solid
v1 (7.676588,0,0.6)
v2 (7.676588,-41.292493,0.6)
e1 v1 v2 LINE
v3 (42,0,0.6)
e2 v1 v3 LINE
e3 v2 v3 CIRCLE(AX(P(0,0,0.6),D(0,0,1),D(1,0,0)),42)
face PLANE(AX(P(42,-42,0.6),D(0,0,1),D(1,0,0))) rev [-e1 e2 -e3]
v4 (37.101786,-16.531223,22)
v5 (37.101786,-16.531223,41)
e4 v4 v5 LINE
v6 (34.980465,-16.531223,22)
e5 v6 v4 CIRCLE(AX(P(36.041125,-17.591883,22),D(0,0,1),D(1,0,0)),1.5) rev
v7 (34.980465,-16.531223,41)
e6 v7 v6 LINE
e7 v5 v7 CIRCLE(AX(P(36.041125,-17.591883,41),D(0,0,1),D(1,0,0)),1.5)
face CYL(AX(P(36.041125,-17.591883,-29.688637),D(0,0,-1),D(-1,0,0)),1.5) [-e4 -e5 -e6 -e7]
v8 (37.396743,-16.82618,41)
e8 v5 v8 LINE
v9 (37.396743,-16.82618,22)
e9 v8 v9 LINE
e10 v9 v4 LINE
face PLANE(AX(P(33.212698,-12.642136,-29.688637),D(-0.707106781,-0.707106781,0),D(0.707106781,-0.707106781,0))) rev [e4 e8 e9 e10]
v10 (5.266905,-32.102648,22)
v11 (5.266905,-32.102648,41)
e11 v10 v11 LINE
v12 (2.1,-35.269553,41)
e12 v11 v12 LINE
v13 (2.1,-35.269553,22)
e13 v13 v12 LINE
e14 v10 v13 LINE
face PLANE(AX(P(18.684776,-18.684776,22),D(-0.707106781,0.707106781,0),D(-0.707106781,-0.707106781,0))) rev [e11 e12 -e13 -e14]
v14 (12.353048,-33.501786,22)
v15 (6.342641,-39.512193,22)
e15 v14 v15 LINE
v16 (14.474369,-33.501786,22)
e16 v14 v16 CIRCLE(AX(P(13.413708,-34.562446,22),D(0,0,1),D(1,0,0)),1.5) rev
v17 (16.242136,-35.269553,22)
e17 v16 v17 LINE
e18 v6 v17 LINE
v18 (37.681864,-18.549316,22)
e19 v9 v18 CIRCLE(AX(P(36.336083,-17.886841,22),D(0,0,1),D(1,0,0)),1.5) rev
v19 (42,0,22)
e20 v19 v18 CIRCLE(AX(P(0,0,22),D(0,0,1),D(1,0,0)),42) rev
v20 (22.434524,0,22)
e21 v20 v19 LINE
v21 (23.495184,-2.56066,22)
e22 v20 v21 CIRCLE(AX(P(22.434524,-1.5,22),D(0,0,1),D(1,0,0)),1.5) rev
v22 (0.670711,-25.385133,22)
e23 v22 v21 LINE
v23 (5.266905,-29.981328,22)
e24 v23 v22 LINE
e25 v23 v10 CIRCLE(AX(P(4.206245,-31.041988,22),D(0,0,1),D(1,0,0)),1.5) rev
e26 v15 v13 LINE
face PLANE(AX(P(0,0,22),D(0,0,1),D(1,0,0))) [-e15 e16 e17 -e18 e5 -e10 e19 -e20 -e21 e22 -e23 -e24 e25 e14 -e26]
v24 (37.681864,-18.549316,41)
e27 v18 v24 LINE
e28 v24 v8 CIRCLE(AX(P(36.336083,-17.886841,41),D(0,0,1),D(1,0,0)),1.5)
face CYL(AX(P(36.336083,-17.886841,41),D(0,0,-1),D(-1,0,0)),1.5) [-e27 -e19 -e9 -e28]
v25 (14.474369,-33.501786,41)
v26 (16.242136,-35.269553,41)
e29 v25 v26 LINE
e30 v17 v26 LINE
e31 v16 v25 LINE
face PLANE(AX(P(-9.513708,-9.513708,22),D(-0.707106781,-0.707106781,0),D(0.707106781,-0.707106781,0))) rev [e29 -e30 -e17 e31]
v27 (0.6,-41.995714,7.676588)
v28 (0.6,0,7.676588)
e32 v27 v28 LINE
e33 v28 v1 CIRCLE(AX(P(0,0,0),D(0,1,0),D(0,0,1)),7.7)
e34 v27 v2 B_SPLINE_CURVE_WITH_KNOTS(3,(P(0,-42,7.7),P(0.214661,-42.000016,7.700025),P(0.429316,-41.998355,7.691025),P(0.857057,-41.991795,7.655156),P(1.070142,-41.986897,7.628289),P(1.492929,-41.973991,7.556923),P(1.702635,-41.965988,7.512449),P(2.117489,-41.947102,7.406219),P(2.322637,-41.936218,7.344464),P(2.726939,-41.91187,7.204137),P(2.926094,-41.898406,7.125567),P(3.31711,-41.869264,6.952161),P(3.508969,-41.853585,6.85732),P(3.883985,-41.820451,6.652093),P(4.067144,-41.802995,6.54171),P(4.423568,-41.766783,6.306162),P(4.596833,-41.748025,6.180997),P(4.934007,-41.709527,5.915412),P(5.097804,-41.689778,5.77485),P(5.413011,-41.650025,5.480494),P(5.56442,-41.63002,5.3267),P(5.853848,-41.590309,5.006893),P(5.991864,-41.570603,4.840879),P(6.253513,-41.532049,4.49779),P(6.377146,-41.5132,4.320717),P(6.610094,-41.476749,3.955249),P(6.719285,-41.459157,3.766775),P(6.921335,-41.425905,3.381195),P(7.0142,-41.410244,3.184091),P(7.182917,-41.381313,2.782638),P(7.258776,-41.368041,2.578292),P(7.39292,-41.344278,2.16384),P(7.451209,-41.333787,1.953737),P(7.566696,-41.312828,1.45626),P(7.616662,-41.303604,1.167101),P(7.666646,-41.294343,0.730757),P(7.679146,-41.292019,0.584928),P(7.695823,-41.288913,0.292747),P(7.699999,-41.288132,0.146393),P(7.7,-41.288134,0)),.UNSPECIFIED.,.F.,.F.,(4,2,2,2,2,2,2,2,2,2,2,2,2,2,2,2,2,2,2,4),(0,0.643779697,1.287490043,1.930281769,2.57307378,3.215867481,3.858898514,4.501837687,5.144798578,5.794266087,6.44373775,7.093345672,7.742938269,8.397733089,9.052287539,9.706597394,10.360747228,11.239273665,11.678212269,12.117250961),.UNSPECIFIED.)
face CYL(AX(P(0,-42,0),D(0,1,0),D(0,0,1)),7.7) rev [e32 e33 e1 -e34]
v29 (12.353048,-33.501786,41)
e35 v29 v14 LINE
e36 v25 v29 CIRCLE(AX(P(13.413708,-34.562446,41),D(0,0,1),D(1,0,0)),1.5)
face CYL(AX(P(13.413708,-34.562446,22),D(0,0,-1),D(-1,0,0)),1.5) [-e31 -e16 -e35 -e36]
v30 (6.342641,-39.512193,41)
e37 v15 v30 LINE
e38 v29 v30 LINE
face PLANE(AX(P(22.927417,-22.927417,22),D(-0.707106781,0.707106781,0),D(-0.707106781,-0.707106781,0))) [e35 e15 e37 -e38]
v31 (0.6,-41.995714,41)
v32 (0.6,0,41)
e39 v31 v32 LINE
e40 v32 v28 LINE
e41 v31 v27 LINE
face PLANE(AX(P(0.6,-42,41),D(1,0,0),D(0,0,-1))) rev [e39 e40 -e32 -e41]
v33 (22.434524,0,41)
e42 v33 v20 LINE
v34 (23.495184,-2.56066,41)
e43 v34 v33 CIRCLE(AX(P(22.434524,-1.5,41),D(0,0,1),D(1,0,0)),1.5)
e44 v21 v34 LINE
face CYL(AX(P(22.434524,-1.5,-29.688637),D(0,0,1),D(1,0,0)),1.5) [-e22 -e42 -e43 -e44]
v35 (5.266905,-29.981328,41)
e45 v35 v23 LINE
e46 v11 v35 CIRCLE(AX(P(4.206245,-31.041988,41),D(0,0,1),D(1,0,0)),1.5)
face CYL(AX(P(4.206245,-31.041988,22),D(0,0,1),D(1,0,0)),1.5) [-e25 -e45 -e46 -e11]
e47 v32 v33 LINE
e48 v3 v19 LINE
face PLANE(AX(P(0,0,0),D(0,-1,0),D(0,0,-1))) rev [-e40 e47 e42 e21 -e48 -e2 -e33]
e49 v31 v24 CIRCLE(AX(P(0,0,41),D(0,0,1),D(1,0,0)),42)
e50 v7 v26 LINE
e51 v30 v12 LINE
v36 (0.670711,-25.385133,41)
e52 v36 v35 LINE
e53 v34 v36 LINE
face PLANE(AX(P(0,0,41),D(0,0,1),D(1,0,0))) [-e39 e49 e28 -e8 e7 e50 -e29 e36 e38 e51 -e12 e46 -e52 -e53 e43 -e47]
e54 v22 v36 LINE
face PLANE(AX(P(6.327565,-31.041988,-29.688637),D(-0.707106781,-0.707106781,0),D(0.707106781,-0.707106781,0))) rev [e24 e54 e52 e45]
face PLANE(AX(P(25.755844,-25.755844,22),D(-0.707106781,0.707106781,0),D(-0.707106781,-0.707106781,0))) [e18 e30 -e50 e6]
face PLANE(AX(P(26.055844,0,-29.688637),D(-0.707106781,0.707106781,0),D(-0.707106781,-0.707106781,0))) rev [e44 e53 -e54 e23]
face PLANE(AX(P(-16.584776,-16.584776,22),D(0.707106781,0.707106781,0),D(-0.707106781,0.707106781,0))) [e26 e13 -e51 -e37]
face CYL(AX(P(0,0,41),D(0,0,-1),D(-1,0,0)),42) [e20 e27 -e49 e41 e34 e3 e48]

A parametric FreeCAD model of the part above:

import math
import FreeCAD as App
import Part
import Sketcher
from FreeCAD import Vector
Q = App.Units.Quantity


def edges_at(feature, points):
    """Names of the edges that pass closest to the given points."""
    edges = feature.Shape.Edges
    near = lambda p: min(range(len(edges)), key=lambda i: edges[i].distToShape(Part.Vertex(*p))[0])
    return sorted({f"Edge{near(p) + 1}" for p in points})


def add_polygon(sketch, points):
    """Adds a closed chain of lines whose ends are joined by coincident constraints."""
    first, n = sketch.GeometryCount, len(points)
    for a, b in zip(points, points[1:] + points[:1]):
        sketch.addGeometry(Part.LineSegment(App.Vector(*a, 0), App.Vector(*b, 0)), False)
    for i in range(n):
        sketch.addConstraint(Sketcher.Constraint("Coincident", first + i, 2, first + (i + 1) % n, 1))

doc = App.newDocument("Part")
body = doc.addObject("PartDesign::Body", "Body")

sketch1 = doc.addObject("Sketcher::SketchObject", "Sketch")
body.addObject(sketch1)
sketch1.AttachmentSupport = (doc.XY_Plane, [""])
sketch1.MapMode = "FlatFace"
sketch1.addGeometry(Part.Circle(Vector(0, 0, 0), Vector(0, 0, 1), 42), False)
sketch1.addConstraint([
    Sketcher.Constraint("Coincident", 0, 3, -1, 1),
    Sketcher.Constraint("Diameter", 0, Q("84 mm")),
])
pad1 = doc.addObject("PartDesign::Pad", "Pad")
body.addObject(pad1)
pad1.Profile = sketch1
pad1.Length = 41

sketch2 = doc.addObject("Sketcher::SketchObject", "Sketch001")
body.addObject(sketch2)
sketch2.AttachmentSupport = (doc.XY_Plane, [""])
sketch2.MapMode = "FlatFace"
sketch2.AttachmentOffset = App.Placement(Vector(0, 0, 41), App.Rotation())
sketch2.addGeometry([
    Part.LineSegment(Vector(0, 0, 0), Vector(42, 0, 0)),
    Part.ArcOfCircle(Part.Circle(Vector(0, 0, 0), Vector(0, 0, 1), 42), math.radians(0), math.radians(270)),
    Part.LineSegment(Vector(0, -42, 0), Vector(0, 0, 0)),
], False)
sketch2.addConstraint([
    Sketcher.Constraint("Coincident", 0, 2, 1, 1),
    Sketcher.Constraint("Coincident", 1, 2, 2, 1),
    Sketcher.Constraint("Coincident", 2, 2, 0, 1),
    Sketcher.Constraint("Horizontal", 0),
    Sketcher.Constraint("Vertical", 2),
    Sketcher.Constraint("Coincident", 1, 3, -1, 1),
    Sketcher.Constraint("Coincident", 2, 2, -1, 1),
    Sketcher.Constraint("Radius", 1, Q("42 mm")),
])
pocket1 = doc.addObject("PartDesign::Pocket", "Pocket")
body.addObject(pocket1)
pocket1.Profile = sketch2
pocket1.Type = "ThroughAll"

sketch3 = doc.addObject("Sketcher::SketchObject", "Sketch002")
body.addObject(sketch3)
sketch3.AttachmentSupport = (doc.XZ_Plane, [""])
sketch3.MapMode = "FlatFace"
sketch3.addGeometry(Part.Circle(Vector(0, 0, 0), Vector(0, 0, 1), 8), False)
sketch3.addConstraint([
    Sketcher.Constraint("Coincident", 0, 3, -1, 1),
    Sketcher.Constraint("Diameter", 0, Q("15.4 mm")),
])
pocket2 = doc.addObject("PartDesign::Pocket", "Pocket001")
body.addObject(pocket2)
pocket2.Profile = sketch3
pocket2.Type = "ThroughAll"
pocket2.Reversed = True

sketch4 = doc.addObject("Sketcher::SketchObject", "Sketch003")
body.addObject(sketch4)
sketch4.AttachmentSupport = (doc.XZ_Plane, [""])
sketch4.MapMode = "FlatFace"
add_polygon(sketch4, [(0, 6.8), (0, 41), (0.6, 41), (0.6, 6.8)])
add_polygon(sketch4, [(6.3, 0), (6.3, 0.6), (42, 0.6), (42, 0)])
sketch4.addConstraint([
    Sketcher.Constraint("Vertical", 0),
    Sketcher.Constraint("Horizontal", 1),
    Sketcher.Constraint("Vertical", 2),
    Sketcher.Constraint("Horizontal", 3),
    Sketcher.Constraint("Vertical", 4),
    Sketcher.Constraint("Horizontal", 5),
    Sketcher.Constraint("Vertical", 6),
    Sketcher.Constraint("Horizontal", 7),
    Sketcher.Constraint("PointOnObject", 0, 2, -2),
    Sketcher.Constraint("PointOnObject", 6, 2, -1),
    Sketcher.Constraint("Equal", 3, 4),
    Sketcher.Constraint("DistanceX", 1, 1, 1, 2, Q("0.6 mm")),
    Sketcher.Constraint("DistanceY", -1, 1, 0, 2, Q("41 mm")),
    Sketcher.Constraint("DistanceX", -1, 1, 5, 2, Q("42 mm")),
    Sketcher.Constraint("DistanceX", 5, 1, 5, 2, Q("35.741544 mm")),
    Sketcher.Constraint("DistanceY", 0, 1, 0, 2, Q("34.211955 mm")),
])
pocket3 = doc.addObject("PartDesign::Pocket", "Pocket002")
body.addObject(pocket3)
pocket3.Profile = sketch4
pocket3.Type = "ThroughAll"
pocket3.Reversed = True

sketch5 = doc.addObject("Sketcher::SketchObject", "Sketch004")
body.addObject(sketch5)
sketch5.AttachmentSupport = (doc.XY_Plane, [""])
sketch5.MapMode = "FlatFace"
sketch5.AttachmentOffset = App.Placement(Vector(0, 0, 41), App.Rotation())
add_polygon(sketch5, [(36, -15.5), (33.2, -12.6), (38.2, -7.7), (33.9, -3.4), (6.3, -31.1), (2.1, -35.3), (6.3, -39.5), (13.4, -32.4), (16.2, -35.3)])
sketch5.addConstraint([
    Sketcher.Constraint("Perpendicular", 0, 1),
    Sketcher.Constraint("Perpendicular", 1, 2),
    Sketcher.Constraint("Perpendicular", 2, 3),
    Sketcher.Constraint("Parallel", 3, 4),
    Sketcher.Constraint("Perpendicular", 4, 5),
    Sketcher.Constraint("Perpendicular", 5, 6),
    Sketcher.Constraint("Perpendicular", 6, 7),
    Sketcher.Constraint("Perpendicular", 7, 8),
    Sketcher.Constraint("Horizontal", 4, 2, 7, 2),
    Sketcher.Constraint("Equal", 2, 5),
    Sketcher.Constraint("Angle", 0, Q("135 deg")),
    Sketcher.Constraint("Distance", 0, Q("4 mm")),
    Sketcher.Constraint("Distance", 1, Q("7 mm")),
    Sketcher.Constraint("Distance", 2, Q("6 mm")),
    Sketcher.Constraint("Distance", 8, Q("28 mm")),
    Sketcher.Constraint("DistanceX", -1, 1, 4, 2, Q("2.1 mm")),
    Sketcher.Constraint("DistanceY", 3, 2, -1, 1, Q("31.112698 mm")),
    Sketcher.Constraint("Distance", 3, Q("39.12132 mm")),
])
pocket4 = doc.addObject("PartDesign::Pocket", "Pocket003")
body.addObject(pocket4)
pocket4.Profile = sketch5
pocket4.Length = 19

sketch6 = doc.addObject("Sketcher::SketchObject", "Sketch005")
body.addObject(sketch6)
sketch6.AttachmentSupport = (doc.XY_Plane, [""])
sketch6.MapMode = "FlatFace"
sketch6.AttachmentOffset = App.Placement(Vector(0, 0, 22), App.Rotation())
sketch6.addGeometry([
    Part.LineSegment(Vector(6, -31, 0), Vector(29, -8, 0)),
    Part.LineSegment(Vector(29, -8, 0), Vector(38, -18, 0)),
    Part.ArcOfCircle(Part.Circle(Vector(0, 0, 0), Vector(0, 0, 1), 42), math.radians(-25), math.radians(0)),
    Part.LineSegment(Vector(42, 0, 0), Vector(26, 0, 0)),
    Part.LineSegment(Vector(26, 0, 0), Vector(1, -25, 0)),
    Part.LineSegment(Vector(1, -25, 0), Vector(6, -31, 0)),
], False)
sketch6.addConstraint([
    Sketcher.Constraint("Coincident", 0, 2, 1, 1),
    Sketcher.Constraint("Coincident", 1, 2, 2, 1),
    Sketcher.Constraint("Coincident", 2, 2, 3, 1),
    Sketcher.Constraint("Coincident", 3, 2, 4, 1),
    Sketcher.Constraint("Coincident", 4, 2, 5, 1),
    Sketcher.Constraint("Coincident", 5, 2, 0, 1),
    Sketcher.Constraint("Horizontal", 3),
    Sketcher.Constraint("Coincident", 2, 3, -1, 1),
    Sketcher.Constraint("PointOnObject", 2, 2, -1),
    Sketcher.Constraint("Perpendicular", 0, 1),
    Sketcher.Constraint("Perpendicular", 1, 4),
    Sketcher.Constraint("Perpendicular", 4, 5),
    Sketcher.Constraint("Radius", 2, Q("42 mm")),
    Sketcher.Constraint("Angle", 0, Q("45 deg")),
    Sketcher.Constraint("Distance", 5, Q("8 mm")),
    Sketcher.Constraint("Distance", 4, Q("35.9 mm")),
    Sketcher.Constraint("Distance", 0, Q("32.02132 mm")),
    Sketcher.Constraint("DistanceX", 3, 2, 3, 1, Q("15.944156 mm")),
])
pocket5 = doc.addObject("PartDesign::Pocket", "Pocket004")
body.addObject(pocket5)
pocket5.Profile = sketch6
pocket5.Length = 19
pocket5.Reversed = True
doc.recompute()

fillet = doc.addObject("PartDesign::Fillet", "Fillet")
body.addObject(fillet)
fillet.Base = (pocket5, edges_at(pocket5, [
    (6.328, -31.042, 31.5),
    (26.056, 0, 31.5),
    (38.146, -17.575, 31.5),
    (36.041, -15.471, 31.5),
    (13.414, -32.441, 31.5),
]))
fillet.Radius = 1.5

doc.recompute()
